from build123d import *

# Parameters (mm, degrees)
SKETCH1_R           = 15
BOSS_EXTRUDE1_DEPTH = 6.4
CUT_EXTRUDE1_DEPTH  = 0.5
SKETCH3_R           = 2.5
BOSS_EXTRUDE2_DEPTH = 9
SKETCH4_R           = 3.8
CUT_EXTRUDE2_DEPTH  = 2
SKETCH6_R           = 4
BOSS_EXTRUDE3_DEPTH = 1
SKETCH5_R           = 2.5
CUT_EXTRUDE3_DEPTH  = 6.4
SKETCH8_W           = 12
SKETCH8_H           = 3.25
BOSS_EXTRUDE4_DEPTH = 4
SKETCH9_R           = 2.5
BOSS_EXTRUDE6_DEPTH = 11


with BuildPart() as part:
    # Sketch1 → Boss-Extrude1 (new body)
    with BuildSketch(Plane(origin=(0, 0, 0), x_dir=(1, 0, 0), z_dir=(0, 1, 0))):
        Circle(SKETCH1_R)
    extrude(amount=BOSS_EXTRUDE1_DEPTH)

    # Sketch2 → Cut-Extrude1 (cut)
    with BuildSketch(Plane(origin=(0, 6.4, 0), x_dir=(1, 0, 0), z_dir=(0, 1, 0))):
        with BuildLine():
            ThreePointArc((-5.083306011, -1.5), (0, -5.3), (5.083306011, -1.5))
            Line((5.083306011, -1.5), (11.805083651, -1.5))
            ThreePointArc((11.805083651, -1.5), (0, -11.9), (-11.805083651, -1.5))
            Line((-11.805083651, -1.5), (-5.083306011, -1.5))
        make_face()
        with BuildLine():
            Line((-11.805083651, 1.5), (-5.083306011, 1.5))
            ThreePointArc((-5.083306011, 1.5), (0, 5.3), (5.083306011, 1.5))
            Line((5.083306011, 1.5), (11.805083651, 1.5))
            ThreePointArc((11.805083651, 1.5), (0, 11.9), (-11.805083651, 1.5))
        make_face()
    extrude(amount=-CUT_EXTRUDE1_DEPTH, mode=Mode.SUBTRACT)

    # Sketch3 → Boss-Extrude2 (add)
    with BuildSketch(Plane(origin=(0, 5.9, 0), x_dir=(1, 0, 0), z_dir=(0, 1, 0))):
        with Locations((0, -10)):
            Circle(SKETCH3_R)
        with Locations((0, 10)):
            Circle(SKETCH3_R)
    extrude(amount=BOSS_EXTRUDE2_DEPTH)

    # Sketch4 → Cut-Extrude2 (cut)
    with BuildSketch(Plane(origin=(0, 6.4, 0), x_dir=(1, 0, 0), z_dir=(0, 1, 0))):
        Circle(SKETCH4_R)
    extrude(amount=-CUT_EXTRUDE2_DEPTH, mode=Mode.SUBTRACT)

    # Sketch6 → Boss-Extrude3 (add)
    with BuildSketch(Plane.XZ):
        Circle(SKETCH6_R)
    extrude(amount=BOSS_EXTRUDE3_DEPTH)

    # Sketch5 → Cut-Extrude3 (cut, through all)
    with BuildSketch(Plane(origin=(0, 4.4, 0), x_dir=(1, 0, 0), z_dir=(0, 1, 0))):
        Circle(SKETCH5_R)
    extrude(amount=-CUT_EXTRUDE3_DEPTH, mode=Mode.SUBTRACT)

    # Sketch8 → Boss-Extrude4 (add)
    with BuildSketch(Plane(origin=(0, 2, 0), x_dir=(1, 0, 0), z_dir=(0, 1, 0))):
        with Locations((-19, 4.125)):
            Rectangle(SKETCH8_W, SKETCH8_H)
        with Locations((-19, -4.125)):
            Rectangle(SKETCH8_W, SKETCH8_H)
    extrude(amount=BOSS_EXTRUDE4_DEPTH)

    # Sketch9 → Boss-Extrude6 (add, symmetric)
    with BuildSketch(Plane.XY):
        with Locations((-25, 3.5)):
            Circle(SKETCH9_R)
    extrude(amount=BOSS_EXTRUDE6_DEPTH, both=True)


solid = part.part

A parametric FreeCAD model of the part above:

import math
import FreeCAD as App
import Part
import Sketcher
Q = App.Units.Quantity


def add_polygon(sketch, points):
    """Adds a closed chain of lines whose ends are joined by coincident constraints."""
    first, n = sketch.GeometryCount, len(points)
    for a, b in zip(points, points[1:] + points[:1]):
        sketch.addGeometry(Part.LineSegment(App.Vector(*a, 0), App.Vector(*b, 0)), False)
    for i in range(n):
        sketch.addConstraint(Sketcher.Constraint("Coincident", first + i, 2, first + (i + 1) % n, 1))

doc = App.newDocument("Part")
body = doc.addObject("PartDesign::Body", "Body")

# Sketch on XZ plane
sketch1 = body.newObject("Sketcher::SketchObject", "Sketch")
sketch1.AttachmentSupport = (doc.getObject("XZ_Plane"), [""])
sketch1.MapMode = "FlatFace"
sketch1.addGeometry(Part.Circle(App.Vector(0, 0, 0), App.Vector(0, 0, 1), 15), False)
sketch1.addConstraint([
    Sketcher.Constraint("Coincident", 0, 3, -1, 1),
    Sketcher.Constraint("Diameter", 0, Q("30 mm")),
])
pad1 = body.newObject("PartDesign::Pad", "Pad")
pad1.Profile = sketch1
pad1.Length = 6.4
pad1.Reversed = True

# Sketch on XZ plane
sketch2 = body.newObject("Sketcher::SketchObject", "Sketch001")
sketch2.AttachmentSupport = (doc.getObject("XZ_Plane"), [""])
sketch2.MapMode = "FlatFace"
sketch2.AttachmentOffset = App.Placement(App.Vector(0, 0, -6.4), App.Rotation())
sketch2.addGeometry([
    Part.ArcOfCircle(Part.Circle(App.Vector(0, 0, 0), App.Vector(0, 0, 1), 5.3), math.radians(16.440463), math.radians(163.559537)),  # 0
    Part.LineSegment(App.Vector(-5.083306, 1.5, 0), App.Vector(-11.805084, 1.5, 0)),  # 1
    Part.ArcOfCircle(Part.Circle(App.Vector(0, 0, 0), App.Vector(0, 0, 1), 11.9), math.radians(7.24142), math.radians(172.75858)),  # 2
    Part.LineSegment(App.Vector(11.805084, 1.5, 0), App.Vector(5.083306, 1.5, 0)),  # 3
    Part.LineSegment(App.Vector(-11.805084, -1.5, 0), App.Vector(-5.083306, -1.5, 0)),  # 4
    Part.ArcOfCircle(Part.Circle(App.Vector(0, 0, 0), App.Vector(0, 0, 1), 5.3), math.radians(-163.559537), math.radians(-16.440463)),  # 5
    Part.LineSegment(App.Vector(5.083306, -1.5, 0), App.Vector(11.805084, -1.5, 0)),  # 6
    Part.ArcOfCircle(Part.Circle(App.Vector(0, 0, 0), App.Vector(0, 0, 1), 11.9), math.radians(-172.75858), math.radians(-7.24142)),  # 7
], False)
sketch2.addConstraint([
    Sketcher.Constraint("Coincident", 0, 2, 1, 1),
    Sketcher.Constraint("Coincident", 1, 2, 2, 2),
    Sketcher.Constraint("Coincident", 2, 1, 3, 1),
    Sketcher.Constraint("Coincident", 3, 2, 0, 1),
    Sketcher.Constraint("Coincident", 4, 2, 5, 1),
    Sketcher.Constraint("Coincident", 5, 2, 6, 1),
    Sketcher.Constraint("Coincident", 6, 2, 7, 2),
    Sketcher.Constraint("Coincident", 7, 1, 4, 1),
    Sketcher.Constraint("Horizontal", 1),
    Sketcher.Constraint("Horizontal", 3),
    Sketcher.Constraint("Horizontal", 4),
    Sketcher.Constraint("Horizontal", 6),
    Sketcher.Constraint("Coincident", 0, 3, -1, 1),
    Sketcher.Constraint("Coincident", 2, 3, -1, 1),
    Sketcher.Constraint("Coincident", 5, 3, -1, 1),
    Sketcher.Constraint("Coincident", 7, 3, -1, 1),
    Sketcher.Constraint("Equal", 0, 5),
    Sketcher.Constraint("Equal", 2, 7),
    Sketcher.Constraint("Horizontal", 1, 2, 2, 1),
    Sketcher.Constraint("Horizontal", 4, 2, 5, 2),
    Sketcher.Constraint("Vertical", 0, 2, 4, 2),
    Sketcher.Constraint("Radius", 0, Q("5.3 mm")),
    Sketcher.Constraint("Radius", 2, Q("11.9 mm")),
    Sketcher.Constraint("DistanceY", 4, 2, 0, 2, Q("3 mm")),
])
pocket1 = body.newObject("PartDesign::Pocket", "Pocket")
pocket1.Profile = sketch2
pocket1.Length = 0.5
pocket1.Reversed = True

# Sketch on XZ plane
sketch3 = body.newObject("Sketcher::SketchObject", "Sketch002")
sketch3.AttachmentSupport = (doc.getObject("XZ_Plane"), [""])
sketch3.MapMode = "FlatFace"
sketch3.AttachmentOffset = App.Placement(App.Vector(0, 0, -5.9), App.Rotation())
sketch3.addGeometry([
    Part.Circle(App.Vector(0, 10, 0), App.Vector(0, 0, 1), 2.5),
    Part.Circle(App.Vector(0, -10, 0), App.Vector(0, 0, 1), 2.5),
], False)
sketch3.addConstraint([
    Sketcher.Constraint("Equal", 0, 1),
    Sketcher.Constraint("Symmetric", 0, 3, 1, 3, -1, 1),
    Sketcher.Constraint("PointOnObject", 0, 3, -2),
    Sketcher.Constraint("Diameter", 0, Q("5 mm")),
    Sketcher.Constraint("DistanceY", -1, 1, 0, 3, Q("10 mm")),
])
pad2 = body.newObject("PartDesign::Pad", "Pad001")
pad2.Profile = sketch3
pad2.Length = 9
pad2.Reversed = True

# Sketch on XZ plane
sketch4 = body.newObject("Sketcher::SketchObject", "Sketch003")
sketch4.AttachmentSupport = (doc.getObject("XZ_Plane"), [""])
sketch4.MapMode = "FlatFace"
sketch4.AttachmentOffset = App.Placement(App.Vector(0, 0, -6.4), App.Rotation())
sketch4.addGeometry(Part.Circle(App.Vector(0, 0, 0), App.Vector(0, 0, 1), 3.8), False)
sketch4.addConstraint([
    Sketcher.Constraint("Coincident", 0, 3, -1, 1),
    Sketcher.Constraint("Diameter", 0, Q("7.6 mm")),
])
pocket2 = body.newObject("PartDesign::Pocket", "Pocket001")
pocket2.Profile = sketch4
pocket2.Length = 2
pocket2.Reversed = True

# Sketch on XZ plane
sketch5 = body.newObject("Sketcher::SketchObject", "Sketch004")
sketch5.AttachmentSupport = (doc.getObject("XZ_Plane"), [""])
sketch5.MapMode = "FlatFace"
sketch5.addGeometry(Part.Circle(App.Vector(0, 0, 0), App.Vector(0, 0, 1), 4), False)
sketch5.addConstraint([
    Sketcher.Constraint("Coincident", 0, 3, -1, 1),
    Sketcher.Constraint("Diameter", 0, Q("8 mm")),
])
pad3 = body.newObject("PartDesign::Pad", "Pad002")
pad3.Profile = sketch5
pad3.Length = 1

# Sketch on XZ plane
sketch6 = body.newObject("Sketcher::SketchObject", "Sketch005")
sketch6.AttachmentSupport = (doc.getObject("XZ_Plane"), [""])
sketch6.MapMode = "FlatFace"
sketch6.AttachmentOffset = App.Placement(App.Vector(0, 0, -4.4), App.Rotation())
sketch6.addGeometry(Part.Circle(App.Vector(0, 0, 0), App.Vector(0, 0, 1), 2.5), False)
sketch6.addConstraint([
    Sketcher.Constraint("Coincident", 0, 3, -1, 1),
    Sketcher.Constraint("Diameter", 0, Q("5 mm")),
])
pocket3 = body.newObject("PartDesign::Pocket", "Pocket002")
pocket3.Profile = sketch6
pocket3.Type = "ThroughAll"
pocket3.Reversed = True

# Sketch on XZ plane
sketch7 = body.newObject("Sketcher::SketchObject", "Sketch006")
sketch7.AttachmentSupport = (doc.getObject("XZ_Plane"), [""])
sketch7.MapMode = "FlatFace"
sketch7.AttachmentOffset = App.Placement(App.Vector(0, 0, -2), App.Rotation())
add_polygon(sketch7, [(-25, -5.75), (-25, -2.5), (-13, -2.5), (-13, -5.75)])  # lines 0-3
add_polygon(sketch7, [(-25, 2.5), (-25, 5.75), (-13, 5.75), (-13, 2.5)])  # lines 4-7
sketch7.addConstraint([
    Sketcher.Constraint("Vertical", 0),
    Sketcher.Constraint("Horizontal", 1),
    Sketcher.Constraint("Vertical", 2),
    Sketcher.Constraint("Horizontal", 3),
    Sketcher.Constraint("Vertical", 4),
    Sketcher.Constraint("Horizontal", 5),
    Sketcher.Constraint("Vertical", 6),
    Sketcher.Constraint("Horizontal", 7),
    Sketcher.Constraint("Symmetric", 3, 2, 4, 2, -1),
    Sketcher.Constraint("Symmetric", 1, 2, 6, 2, -1),
    Sketcher.Constraint("DistanceX", 1, 1, 1, 2, Q("12 mm")),
    Sketcher.Constraint("DistanceX", 0, 2, -1, 1, Q("25 mm")),
    Sketcher.Constraint("DistanceY", 1, 2, 6, 2, Q("5 mm")),
    Sketcher.Constraint("DistanceY", 0, 1, 0, 2, Q("3.25 mm")),
])
pad4 = body.newObject("PartDesign::Pad", "Pad003")
pad4.Profile = sketch7
pad4.Length = 4
pad4.Reversed = True

# Sketch on XY plane
sketch8 = body.newObject("Sketcher::SketchObject", "Sketch007")
sketch8.AttachmentSupport = (doc.getObject("XY_Plane"), [""])
sketch8.MapMode = "FlatFace"
sketch8.addGeometry(Part.Circle(App.Vector(-25, 3.5, 0), App.Vector(0, 0, 1), 2.5), False)
sketch8.addConstraint([
    Sketcher.Constraint("Diameter", 0, Q("5 mm")),
    Sketcher.Constraint("DistanceX", 0, 3, -1, 1, Q("25 mm")),
    Sketcher.Constraint("DistanceY", -1, 1, 0, 3, Q("3.5 mm")),
])
pad5 = body.newObject("PartDesign::Pad", "Pad004")
pad5.Profile = sketch8
pad5.Length = 22
pad5.Midplane = True

doc.recompute()
